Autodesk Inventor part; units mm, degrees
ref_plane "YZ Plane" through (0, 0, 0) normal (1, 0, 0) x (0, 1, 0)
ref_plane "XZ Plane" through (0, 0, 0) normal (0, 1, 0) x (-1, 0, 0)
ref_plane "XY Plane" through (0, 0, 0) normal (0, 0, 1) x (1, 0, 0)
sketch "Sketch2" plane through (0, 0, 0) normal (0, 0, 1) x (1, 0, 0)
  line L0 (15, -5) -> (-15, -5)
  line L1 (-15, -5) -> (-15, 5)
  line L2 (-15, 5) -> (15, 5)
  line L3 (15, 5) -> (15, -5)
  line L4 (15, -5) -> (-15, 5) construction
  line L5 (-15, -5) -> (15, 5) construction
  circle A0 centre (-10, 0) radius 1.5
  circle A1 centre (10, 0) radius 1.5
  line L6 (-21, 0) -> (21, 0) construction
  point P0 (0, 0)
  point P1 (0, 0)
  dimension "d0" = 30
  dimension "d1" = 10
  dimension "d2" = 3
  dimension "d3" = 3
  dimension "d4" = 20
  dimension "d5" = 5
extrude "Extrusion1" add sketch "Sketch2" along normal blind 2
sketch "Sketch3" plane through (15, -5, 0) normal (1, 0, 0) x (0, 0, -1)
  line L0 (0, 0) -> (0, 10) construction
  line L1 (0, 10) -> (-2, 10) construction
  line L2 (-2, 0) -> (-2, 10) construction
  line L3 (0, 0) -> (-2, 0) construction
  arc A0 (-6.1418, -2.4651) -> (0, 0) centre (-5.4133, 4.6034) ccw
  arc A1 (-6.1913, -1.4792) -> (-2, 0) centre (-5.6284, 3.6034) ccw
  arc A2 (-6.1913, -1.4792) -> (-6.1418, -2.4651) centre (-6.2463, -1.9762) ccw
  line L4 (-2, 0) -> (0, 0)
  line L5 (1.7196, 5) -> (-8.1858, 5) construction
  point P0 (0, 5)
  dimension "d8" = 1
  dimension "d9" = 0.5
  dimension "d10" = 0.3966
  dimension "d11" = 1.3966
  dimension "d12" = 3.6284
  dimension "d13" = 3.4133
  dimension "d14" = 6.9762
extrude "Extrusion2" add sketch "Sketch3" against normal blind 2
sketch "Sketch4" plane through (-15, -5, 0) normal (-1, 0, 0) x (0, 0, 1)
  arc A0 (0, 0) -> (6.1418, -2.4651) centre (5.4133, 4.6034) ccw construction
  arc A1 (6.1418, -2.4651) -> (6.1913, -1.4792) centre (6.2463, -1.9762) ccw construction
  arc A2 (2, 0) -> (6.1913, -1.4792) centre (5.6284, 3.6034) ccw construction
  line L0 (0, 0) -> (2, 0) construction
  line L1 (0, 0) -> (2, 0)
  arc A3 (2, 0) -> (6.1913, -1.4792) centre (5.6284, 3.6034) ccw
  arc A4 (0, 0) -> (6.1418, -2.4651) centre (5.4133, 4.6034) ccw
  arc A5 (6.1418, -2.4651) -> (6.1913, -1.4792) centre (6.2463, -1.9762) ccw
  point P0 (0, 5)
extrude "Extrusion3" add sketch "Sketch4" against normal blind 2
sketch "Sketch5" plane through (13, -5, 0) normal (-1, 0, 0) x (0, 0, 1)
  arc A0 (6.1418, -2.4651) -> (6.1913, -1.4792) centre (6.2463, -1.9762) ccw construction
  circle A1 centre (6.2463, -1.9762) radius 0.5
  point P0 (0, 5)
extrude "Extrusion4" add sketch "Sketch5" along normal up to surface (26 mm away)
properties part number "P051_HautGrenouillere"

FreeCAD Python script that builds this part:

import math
import FreeCAD as App
import Part
import Sketcher
from FreeCAD import Vector


def add_polygon(sketch, points):
    """Adds a closed chain of lines whose ends are joined by coincident constraints."""
    first, n = sketch.GeometryCount, len(points)
    for a, b in zip(points, points[1:] + points[:1]):
        sketch.addGeometry(Part.LineSegment(App.Vector(*a, 0), App.Vector(*b, 0)), False)
    for i in range(n):
        sketch.addConstraint(Sketcher.Constraint("Coincident", first + i, 2, first + (i + 1) % n, 1))

doc = App.newDocument("Part")
params = doc.addObject("Spreadsheet::Sheet", "Params")
for row, (alias, value) in enumerate([
    ("sketch1_diameter", "3 mm"),
    ("sketch1_width", "30 mm"),
    ("sketch1_height", "10 mm"),
    ("pad1_length", "2 mm"),
    ("sketch2_radius", "0.5 mm"),
    ("sketch2_height", "2 mm"),
    ("pad2_length", "2 mm"),
    ("sketch3_radius", "0.5 mm"),
    ("sketch3_height", "2 mm"),
    ("pad3_length", "2 mm"),
    ("sketch4_diameter", "1 mm"),
    ("pad4_length", "26 mm"),
], start=1):
    params.set(f"A{row}", alias)
    params.set(f"B{row}", "=" + value)
    params.setAlias(f"B{row}", alias)

body = doc.addObject("PartDesign::Body", "Body")

# Sketch on XY plane
sketch1 = body.newObject("Sketcher::SketchObject", "Sketch")
sketch1.AttachmentSupport = (doc.getObject("XY_Plane"), [""])
sketch1.MapMode = "FlatFace"
add_polygon(sketch1, [(-15, -5), (15, -5), (15, 5), (-15, 5)])  # lines 0-3
sketch1.addGeometry(Part.Circle(Vector(-10, 0, 0), Vector(0, 0, 1), 1.5), False)  # 4
sketch1.addGeometry(Part.Circle(Vector(10, 0, 0), Vector(0, 0, 1), 1.5), False)  # 5
sketch1.addConstraint([
    Sketcher.Constraint("Horizontal", 0),
    Sketcher.Constraint("Vertical", 1),
    Sketcher.Constraint("Horizontal", 2),
    Sketcher.Constraint("Vertical", 3),
    Sketcher.Constraint("Equal", 4, 5),
    Sketcher.Constraint("Symmetric", 4, 3, 5, 3, -1, 1),
    Sketcher.Constraint("Symmetric", 0, 2, 2, 2, -1, 1),
    Sketcher.Constraint("PointOnObject", 4, 3, -1),
    Sketcher.Constraint("Diameter", 4, 3.0),
    Sketcher.Constraint("DistanceX", 0, 1, 0, 2, 30.0),
    Sketcher.Constraint("DistanceY", 1, 1, 1, 2, 10.0),
    Sketcher.Constraint("DistanceX", 4, 3, -1, 1, 10.0),
])
sketch1.setExpression("Constraints[12]", "Params.sketch1_diameter")
sketch1.setExpression("Constraints[13]", "Params.sketch1_width")
sketch1.setExpression("Constraints[14]", "Params.sketch1_height")
pad1 = body.newObject("PartDesign::Pad", "Pad")
pad1.Profile = sketch1
pad1.setExpression("Length", "Params.pad1_length")

# Sketch on YZ plane
sketch2 = body.newObject("Sketcher::SketchObject", "Sketch001")
sketch2.AttachmentSupport = (doc.getObject("YZ_Plane"), [""])
sketch2.MapMode = "FlatFace"
sketch2.AttachmentOffset = App.Placement(Vector(0, 0, 15), App.Rotation())
sketch2.addGeometry([
    Part.ArcOfCircle(Part.Circle(Vector(-7, 6.2, 0), Vector(0, 0, 1), 0.5), math.radians(-6), math.radians(192)),
    Part.ArcOfCircle(Part.Circle(Vector(-0.4, 5.4, 0), Vector(0, 0, 1), 7.1), math.radians(174), math.radians(230)),
    Part.LineSegment(Vector(-5, 0, 0), Vector(-5, 2, 0)),
    Part.ArcOfCircle(Part.Circle(Vector(-1.4, 5.6, 0), Vector(0, 0, 1), 5.1), math.radians(174), math.radians(225)),
], False)
sketch2.addConstraint([
    Sketcher.Constraint("Coincident", 0, 2, 1, 1),
    Sketcher.Constraint("Coincident", 1, 2, 2, 1),
    Sketcher.Constraint("Coincident", 2, 2, 3, 2),
    Sketcher.Constraint("Tangent", 3, 1, 0, 1),
    Sketcher.Constraint("Vertical", 2),
    Sketcher.Constraint("PointOnObject", 1, 2, -1),
    Sketcher.Constraint("Radius", 0, 0.5),
    Sketcher.Constraint("DistanceX", 3, 3, 1, 3, 1.0),
    Sketcher.Constraint("DistanceY", 2, 1, 2, 2, 2.0),
    Sketcher.Constraint("DistanceX", 1, 2, -1, 1, 5.0),
    Sketcher.Constraint("Radius", 1, 7.106),
    Sketcher.Constraint("DistanceX", 0, 3, -1, 1, 6.9762),
    Sketcher.Constraint("DistanceX", 1, 3, -1, 1, 0.3966),
    Sketcher.Constraint("Radius", 3, 5.1137),
])
sketch2.setExpression("Constraints[6]", "Params.sketch2_radius")
sketch2.setExpression("Constraints[8]", "Params.sketch2_height")
pad2 = body.newObject("PartDesign::Pad", "Pad001")
pad2.Profile = sketch2
pad2.setExpression("Length", "Params.pad2_length")
pad2.Reversed = True

# Sketch on YZ plane
sketch3 = body.newObject("Sketcher::SketchObject", "Sketch002")
sketch3.AttachmentSupport = (doc.getObject("YZ_Plane"), [""])
sketch3.MapMode = "FlatFace"
sketch3.AttachmentOffset = App.Placement(Vector(0, 0, -15), App.Rotation())
sketch3.addGeometry([
    Part.LineSegment(Vector(-5, 2, 0), Vector(-5, 0, 0)),
    Part.ArcOfCircle(Part.Circle(Vector(-0.4, 5.41, 0), Vector(0, 0, 1), 7.11), math.radians(174), math.radians(230)),
    Part.ArcOfCircle(Part.Circle(Vector(-6.98, 6.25, 0), Vector(0, 0, 1), 0.5), math.radians(-6), math.radians(192)),
    Part.ArcOfCircle(Part.Circle(Vector(-1.4, 5.63, 0), Vector(0, 0, 1), 5.11), math.radians(174), math.radians(225)),
], False)
sketch3.addConstraint([
    Sketcher.Constraint("Coincident", 0, 2, 1, 2),
    Sketcher.Constraint("Coincident", 1, 1, 2, 2),
    Sketcher.Constraint("Tangent", 2, 1, 3, 1),
    Sketcher.Constraint("Coincident", 3, 2, 0, 1),
    Sketcher.Constraint("Vertical", 0),
    Sketcher.Constraint("PointOnObject", 0, 2, -1),
    Sketcher.Constraint("Radius", 2, 0.5),
    Sketcher.Constraint("DistanceY", 0, 2, 0, 1, 2.0),
    Sketcher.Constraint("DistanceX", 0, 2, -1, 1, 5.0),
    Sketcher.Constraint("Radius", 1, 7.106),
    Sketcher.Constraint("DistanceX", 3, 3, 1, 3, 1.0),
    Sketcher.Constraint("Radius", 3, 5.1137),
    Sketcher.Constraint("DistanceY", 1, 3, 2, 3, 0.833),
    Sketcher.Constraint("DistanceY", 1, 3, 3, 3, 0.215),
])
sketch3.setExpression("Constraints[6]", "Params.sketch3_radius")
sketch3.setExpression("Constraints[7]", "Params.sketch3_height")
pad3 = body.newObject("PartDesign::Pad", "Pad002")
pad3.Profile = sketch3
pad3.setExpression("Length", "Params.pad3_length")

# Sketch on YZ plane
sketch4 = body.newObject("Sketcher::SketchObject", "Sketch003")
sketch4.AttachmentSupport = (doc.getObject("YZ_Plane"), [""])
sketch4.MapMode = "FlatFace"
sketch4.AttachmentOffset = App.Placement(Vector(0, 0, 13), App.Rotation())
sketch4.addGeometry(Part.Circle(Vector(-7, 6.2, 0), Vector(0, 0, 1), 0.5), False)
sketch4.addConstraint([
    Sketcher.Constraint("Diameter", 0, 1.0),
    Sketcher.Constraint("DistanceX", 0, 3, -1, 1, 6.9762),
    Sketcher.Constraint("DistanceY", -1, 1, 0, 3, 6.2463),
])
sketch4.setExpression("Constraints[0]", "Params.sketch4_diameter")
pad4 = body.newObject("PartDesign::Pad", "Pad003")
pad4.Profile = sketch4
pad4.setExpression("Length", "Params.pad4_length")
pad4.Reversed = True

doc.recompute()
